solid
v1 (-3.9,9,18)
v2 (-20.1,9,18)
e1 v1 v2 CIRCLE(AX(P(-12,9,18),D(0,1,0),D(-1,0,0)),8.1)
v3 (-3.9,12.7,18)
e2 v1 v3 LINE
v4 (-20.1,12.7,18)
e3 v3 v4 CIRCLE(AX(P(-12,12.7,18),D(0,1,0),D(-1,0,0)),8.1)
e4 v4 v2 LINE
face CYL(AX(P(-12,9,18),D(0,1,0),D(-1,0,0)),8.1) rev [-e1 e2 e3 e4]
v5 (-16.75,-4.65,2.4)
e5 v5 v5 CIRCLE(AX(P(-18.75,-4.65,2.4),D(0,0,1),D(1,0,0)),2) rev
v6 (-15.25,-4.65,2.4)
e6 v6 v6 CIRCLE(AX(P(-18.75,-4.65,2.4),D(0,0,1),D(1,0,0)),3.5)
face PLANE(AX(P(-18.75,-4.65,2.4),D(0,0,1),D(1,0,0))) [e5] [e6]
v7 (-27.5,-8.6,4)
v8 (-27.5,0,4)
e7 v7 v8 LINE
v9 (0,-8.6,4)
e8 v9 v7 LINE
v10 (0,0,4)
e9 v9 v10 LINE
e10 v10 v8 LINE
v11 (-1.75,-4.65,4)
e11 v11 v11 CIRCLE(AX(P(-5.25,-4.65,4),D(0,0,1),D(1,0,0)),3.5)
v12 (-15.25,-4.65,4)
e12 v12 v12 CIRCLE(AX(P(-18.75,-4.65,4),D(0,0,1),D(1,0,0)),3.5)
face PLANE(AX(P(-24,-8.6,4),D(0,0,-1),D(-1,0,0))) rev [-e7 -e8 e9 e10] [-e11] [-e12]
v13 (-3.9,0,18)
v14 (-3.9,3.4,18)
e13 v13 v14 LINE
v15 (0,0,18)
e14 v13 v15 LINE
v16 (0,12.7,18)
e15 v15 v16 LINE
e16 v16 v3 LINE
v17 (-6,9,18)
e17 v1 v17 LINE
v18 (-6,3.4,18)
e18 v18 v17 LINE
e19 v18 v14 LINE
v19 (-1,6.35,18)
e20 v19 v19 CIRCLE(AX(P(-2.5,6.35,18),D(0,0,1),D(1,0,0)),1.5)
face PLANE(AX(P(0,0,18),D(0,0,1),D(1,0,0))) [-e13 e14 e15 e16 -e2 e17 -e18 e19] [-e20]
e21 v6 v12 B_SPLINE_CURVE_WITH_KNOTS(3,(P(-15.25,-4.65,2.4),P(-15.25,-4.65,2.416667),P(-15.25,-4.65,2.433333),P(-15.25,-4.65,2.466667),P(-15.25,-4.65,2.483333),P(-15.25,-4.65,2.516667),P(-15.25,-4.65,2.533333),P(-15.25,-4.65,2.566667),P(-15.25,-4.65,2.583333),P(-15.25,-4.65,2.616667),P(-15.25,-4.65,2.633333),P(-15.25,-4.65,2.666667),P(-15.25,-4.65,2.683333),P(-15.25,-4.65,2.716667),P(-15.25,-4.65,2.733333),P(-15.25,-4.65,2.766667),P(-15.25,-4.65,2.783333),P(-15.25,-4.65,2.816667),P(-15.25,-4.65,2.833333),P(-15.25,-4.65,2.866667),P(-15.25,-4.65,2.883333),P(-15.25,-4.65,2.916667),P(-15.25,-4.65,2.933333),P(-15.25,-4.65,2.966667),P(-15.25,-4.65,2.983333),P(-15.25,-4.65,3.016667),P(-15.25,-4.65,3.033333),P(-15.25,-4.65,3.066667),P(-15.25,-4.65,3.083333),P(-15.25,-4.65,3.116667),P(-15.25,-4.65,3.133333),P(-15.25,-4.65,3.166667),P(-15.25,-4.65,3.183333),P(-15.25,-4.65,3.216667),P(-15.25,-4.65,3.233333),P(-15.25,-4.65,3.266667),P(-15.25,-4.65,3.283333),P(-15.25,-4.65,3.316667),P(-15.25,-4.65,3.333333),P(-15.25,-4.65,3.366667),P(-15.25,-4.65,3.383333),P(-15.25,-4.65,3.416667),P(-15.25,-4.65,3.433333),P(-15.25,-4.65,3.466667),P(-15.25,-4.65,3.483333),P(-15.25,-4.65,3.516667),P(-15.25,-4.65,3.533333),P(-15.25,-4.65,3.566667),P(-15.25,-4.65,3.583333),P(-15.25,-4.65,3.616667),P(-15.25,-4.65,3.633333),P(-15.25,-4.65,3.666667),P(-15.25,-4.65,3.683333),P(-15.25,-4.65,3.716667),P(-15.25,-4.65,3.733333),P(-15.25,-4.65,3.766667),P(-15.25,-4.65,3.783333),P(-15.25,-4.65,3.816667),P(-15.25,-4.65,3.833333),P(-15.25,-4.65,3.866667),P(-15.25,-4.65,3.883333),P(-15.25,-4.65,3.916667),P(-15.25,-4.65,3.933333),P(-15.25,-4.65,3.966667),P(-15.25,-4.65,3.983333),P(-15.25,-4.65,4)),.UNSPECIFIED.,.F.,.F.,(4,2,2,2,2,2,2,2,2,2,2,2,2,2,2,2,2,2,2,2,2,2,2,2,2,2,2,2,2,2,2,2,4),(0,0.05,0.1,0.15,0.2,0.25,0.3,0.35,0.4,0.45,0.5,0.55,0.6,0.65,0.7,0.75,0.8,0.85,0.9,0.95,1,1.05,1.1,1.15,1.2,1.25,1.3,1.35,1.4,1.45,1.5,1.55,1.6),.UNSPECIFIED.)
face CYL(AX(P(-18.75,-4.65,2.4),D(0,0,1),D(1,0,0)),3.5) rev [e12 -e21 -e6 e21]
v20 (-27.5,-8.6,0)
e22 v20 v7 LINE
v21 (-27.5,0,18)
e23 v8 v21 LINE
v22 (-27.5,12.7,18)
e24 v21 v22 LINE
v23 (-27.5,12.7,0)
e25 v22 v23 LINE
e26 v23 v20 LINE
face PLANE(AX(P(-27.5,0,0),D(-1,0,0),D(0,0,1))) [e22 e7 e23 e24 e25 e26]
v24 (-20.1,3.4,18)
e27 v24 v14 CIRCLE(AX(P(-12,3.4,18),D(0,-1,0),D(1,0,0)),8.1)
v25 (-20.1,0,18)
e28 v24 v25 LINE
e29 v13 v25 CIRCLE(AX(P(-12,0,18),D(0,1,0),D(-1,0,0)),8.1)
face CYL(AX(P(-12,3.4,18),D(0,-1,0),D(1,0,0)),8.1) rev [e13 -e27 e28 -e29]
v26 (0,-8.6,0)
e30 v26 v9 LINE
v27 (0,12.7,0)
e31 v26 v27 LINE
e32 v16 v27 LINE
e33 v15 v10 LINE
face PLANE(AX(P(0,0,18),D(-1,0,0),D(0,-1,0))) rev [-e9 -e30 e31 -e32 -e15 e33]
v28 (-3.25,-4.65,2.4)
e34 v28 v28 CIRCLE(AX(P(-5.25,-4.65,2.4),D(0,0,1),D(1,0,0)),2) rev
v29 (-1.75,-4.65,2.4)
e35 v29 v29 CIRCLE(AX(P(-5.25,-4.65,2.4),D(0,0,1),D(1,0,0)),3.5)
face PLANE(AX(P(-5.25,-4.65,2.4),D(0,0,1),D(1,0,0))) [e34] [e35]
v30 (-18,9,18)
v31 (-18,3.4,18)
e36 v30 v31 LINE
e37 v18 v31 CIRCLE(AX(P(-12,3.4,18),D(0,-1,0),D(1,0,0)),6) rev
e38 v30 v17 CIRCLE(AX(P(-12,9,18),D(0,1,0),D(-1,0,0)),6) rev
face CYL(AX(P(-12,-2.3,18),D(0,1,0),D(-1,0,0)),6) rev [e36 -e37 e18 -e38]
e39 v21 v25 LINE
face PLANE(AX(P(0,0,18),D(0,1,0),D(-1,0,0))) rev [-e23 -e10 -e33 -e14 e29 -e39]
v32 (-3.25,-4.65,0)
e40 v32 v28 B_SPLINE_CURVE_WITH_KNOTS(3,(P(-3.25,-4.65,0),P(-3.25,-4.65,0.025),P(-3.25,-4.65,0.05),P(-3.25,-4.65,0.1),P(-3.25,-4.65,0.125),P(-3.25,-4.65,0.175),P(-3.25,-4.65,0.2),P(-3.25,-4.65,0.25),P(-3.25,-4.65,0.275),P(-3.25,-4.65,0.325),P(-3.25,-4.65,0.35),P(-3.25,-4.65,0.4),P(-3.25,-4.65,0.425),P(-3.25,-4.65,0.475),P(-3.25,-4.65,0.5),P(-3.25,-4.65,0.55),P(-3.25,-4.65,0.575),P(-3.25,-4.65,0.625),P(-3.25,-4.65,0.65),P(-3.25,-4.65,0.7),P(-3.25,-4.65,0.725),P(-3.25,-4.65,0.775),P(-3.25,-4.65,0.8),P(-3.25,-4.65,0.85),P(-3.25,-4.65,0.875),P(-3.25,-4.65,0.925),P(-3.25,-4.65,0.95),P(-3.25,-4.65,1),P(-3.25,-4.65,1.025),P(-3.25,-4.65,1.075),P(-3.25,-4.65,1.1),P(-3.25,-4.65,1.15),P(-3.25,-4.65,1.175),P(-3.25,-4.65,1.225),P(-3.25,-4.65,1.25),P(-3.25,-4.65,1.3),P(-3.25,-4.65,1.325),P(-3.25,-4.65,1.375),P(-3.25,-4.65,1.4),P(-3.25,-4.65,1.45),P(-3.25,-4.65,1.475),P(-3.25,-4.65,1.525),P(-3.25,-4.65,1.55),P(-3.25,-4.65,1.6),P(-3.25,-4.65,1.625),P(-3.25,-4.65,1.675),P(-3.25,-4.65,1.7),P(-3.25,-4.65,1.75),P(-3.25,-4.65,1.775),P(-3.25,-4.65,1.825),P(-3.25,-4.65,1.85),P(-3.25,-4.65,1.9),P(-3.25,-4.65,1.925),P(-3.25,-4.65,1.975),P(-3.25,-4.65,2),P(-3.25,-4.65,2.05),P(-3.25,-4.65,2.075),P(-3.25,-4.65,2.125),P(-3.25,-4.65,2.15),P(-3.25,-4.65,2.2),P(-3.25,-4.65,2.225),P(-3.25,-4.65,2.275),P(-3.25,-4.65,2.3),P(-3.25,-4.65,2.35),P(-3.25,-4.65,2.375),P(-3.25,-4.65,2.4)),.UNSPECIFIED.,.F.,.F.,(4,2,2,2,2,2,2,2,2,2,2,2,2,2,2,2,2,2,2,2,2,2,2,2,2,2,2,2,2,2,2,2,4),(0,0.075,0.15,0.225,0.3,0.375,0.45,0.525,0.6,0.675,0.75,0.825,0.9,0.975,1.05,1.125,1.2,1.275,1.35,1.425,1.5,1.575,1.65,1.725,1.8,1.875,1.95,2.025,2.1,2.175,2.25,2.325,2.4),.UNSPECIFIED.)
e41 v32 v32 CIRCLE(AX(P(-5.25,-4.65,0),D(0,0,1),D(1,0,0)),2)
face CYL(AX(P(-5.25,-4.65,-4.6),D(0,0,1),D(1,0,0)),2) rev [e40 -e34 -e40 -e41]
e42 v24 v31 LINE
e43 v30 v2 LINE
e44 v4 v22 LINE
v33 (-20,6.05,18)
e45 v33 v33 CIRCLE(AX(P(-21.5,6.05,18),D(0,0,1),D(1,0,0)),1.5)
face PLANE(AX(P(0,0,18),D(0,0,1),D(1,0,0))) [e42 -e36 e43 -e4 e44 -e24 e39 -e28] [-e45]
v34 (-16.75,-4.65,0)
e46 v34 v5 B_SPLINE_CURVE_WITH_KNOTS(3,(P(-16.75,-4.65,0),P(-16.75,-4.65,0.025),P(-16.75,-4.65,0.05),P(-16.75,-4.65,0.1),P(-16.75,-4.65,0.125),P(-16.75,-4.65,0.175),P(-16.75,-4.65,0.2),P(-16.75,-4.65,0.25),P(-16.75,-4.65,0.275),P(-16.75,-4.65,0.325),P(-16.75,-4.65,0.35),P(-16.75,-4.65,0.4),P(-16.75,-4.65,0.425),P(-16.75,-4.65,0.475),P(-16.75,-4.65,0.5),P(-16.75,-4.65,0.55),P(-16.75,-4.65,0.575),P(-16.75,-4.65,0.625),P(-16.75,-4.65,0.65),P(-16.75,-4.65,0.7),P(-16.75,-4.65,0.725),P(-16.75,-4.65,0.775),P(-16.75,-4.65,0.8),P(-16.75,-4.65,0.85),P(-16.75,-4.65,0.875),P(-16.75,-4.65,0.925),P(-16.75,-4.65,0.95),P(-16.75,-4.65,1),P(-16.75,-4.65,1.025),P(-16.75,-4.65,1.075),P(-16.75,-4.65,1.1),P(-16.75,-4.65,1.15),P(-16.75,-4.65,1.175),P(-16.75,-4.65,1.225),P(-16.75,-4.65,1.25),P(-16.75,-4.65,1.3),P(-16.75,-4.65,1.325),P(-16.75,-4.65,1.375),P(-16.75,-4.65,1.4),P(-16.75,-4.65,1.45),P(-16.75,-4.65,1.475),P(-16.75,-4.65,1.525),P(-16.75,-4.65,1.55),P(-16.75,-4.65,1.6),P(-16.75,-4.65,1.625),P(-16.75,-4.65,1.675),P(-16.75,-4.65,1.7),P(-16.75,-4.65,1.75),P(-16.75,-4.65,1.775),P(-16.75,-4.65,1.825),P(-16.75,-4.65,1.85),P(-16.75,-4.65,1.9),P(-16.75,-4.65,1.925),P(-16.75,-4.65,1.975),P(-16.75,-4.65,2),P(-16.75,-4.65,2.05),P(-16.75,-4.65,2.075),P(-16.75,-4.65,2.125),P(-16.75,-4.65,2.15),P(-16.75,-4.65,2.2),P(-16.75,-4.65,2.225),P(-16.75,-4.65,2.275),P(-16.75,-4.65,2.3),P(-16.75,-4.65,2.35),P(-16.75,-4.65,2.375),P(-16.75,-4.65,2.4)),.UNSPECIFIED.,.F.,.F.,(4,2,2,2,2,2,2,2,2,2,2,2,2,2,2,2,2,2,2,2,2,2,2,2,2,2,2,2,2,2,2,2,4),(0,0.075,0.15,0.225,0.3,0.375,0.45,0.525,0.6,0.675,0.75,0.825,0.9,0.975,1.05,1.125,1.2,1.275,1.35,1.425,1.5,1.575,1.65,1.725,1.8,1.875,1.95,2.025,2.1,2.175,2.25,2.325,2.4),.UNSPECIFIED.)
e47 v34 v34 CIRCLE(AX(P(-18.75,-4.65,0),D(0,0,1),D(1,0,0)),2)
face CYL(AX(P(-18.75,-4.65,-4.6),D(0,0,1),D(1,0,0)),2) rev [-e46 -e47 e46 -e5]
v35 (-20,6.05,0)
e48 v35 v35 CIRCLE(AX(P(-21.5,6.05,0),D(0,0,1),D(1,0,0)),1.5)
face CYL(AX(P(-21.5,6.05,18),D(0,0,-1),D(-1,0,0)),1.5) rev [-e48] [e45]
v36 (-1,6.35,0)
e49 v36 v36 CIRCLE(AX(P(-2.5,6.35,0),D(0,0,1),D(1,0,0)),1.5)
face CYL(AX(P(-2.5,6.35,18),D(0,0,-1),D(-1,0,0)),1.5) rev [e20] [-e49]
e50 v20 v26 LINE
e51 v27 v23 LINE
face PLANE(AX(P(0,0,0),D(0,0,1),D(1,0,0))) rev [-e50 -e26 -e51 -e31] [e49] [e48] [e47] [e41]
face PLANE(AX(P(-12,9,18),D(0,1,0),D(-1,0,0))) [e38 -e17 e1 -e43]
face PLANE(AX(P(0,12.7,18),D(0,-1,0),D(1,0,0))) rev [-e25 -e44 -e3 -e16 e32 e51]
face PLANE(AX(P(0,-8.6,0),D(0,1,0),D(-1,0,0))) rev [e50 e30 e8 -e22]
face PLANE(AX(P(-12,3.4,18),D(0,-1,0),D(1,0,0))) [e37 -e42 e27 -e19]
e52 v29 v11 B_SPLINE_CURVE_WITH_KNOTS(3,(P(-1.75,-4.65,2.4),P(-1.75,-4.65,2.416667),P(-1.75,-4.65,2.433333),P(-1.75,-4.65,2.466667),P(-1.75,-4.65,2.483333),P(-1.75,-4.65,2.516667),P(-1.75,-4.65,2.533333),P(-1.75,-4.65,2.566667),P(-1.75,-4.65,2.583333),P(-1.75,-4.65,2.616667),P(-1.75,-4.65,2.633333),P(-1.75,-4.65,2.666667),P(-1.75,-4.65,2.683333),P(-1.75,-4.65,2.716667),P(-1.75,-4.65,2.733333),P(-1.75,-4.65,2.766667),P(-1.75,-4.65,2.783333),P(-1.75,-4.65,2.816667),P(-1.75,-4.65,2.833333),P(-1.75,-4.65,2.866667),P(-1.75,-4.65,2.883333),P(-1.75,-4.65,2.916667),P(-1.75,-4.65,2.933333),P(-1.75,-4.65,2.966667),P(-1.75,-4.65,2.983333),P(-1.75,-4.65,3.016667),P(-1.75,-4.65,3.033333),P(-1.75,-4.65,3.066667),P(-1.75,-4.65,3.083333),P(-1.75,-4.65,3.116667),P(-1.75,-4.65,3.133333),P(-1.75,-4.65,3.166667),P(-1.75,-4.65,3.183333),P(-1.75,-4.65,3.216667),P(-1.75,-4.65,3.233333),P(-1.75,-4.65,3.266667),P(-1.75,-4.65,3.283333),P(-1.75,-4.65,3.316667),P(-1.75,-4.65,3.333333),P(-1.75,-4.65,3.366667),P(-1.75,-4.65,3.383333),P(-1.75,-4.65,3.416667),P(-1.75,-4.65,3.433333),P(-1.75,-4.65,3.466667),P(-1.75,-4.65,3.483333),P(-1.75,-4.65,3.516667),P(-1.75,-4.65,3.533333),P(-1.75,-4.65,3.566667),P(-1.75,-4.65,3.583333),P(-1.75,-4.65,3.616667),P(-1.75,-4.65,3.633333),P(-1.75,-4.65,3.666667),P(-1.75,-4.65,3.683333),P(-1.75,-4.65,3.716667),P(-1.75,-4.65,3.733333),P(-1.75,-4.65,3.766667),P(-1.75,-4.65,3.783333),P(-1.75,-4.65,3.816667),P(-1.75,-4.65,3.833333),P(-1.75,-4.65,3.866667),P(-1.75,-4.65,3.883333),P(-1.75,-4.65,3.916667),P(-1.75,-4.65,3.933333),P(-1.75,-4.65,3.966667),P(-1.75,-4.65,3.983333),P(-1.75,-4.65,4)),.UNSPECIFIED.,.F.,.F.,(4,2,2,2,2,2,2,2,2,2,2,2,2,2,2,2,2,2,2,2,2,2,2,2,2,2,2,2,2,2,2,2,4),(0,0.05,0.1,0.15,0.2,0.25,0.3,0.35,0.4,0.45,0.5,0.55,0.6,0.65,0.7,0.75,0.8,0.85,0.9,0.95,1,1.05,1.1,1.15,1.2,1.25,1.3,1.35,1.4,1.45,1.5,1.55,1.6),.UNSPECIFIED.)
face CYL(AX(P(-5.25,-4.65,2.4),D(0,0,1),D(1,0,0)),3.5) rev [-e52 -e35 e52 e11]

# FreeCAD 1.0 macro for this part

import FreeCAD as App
import Part
import Sketcher
from FreeCAD import Vector

doc = App.newDocument("Part")
params = doc.addObject("Spreadsheet::Sheet", "Params")
for row, (alias, value) in enumerate([
    ("sketch1_diameter", "3 mm"),
    ("sketch1_width", "24 mm"),
    ("sketch1_height", "12.7 mm"),
    ("pad1_length", "18 mm"),
    ("sketch2_diameter", "12 mm"),
    ("pocket1_length", "15 mm"),
    ("sketch3_diameter", "16.2 mm"),
    ("pocket2_length", "3.7 mm"),
    ("sketch4_diameter", "16.2 mm"),
    ("pocket3_length", "3.4 mm"),
    ("sketch5_width", "24 mm"),
    ("sketch5_height", "4 mm"),
    ("pad2_length", "8.6 mm"),
    ("sketch6_diameter", "4 mm"),
    ("pocket4_length", "8.6 mm"),
    ("sketch7_diameter", "7 mm"),
    ("pocket5_length", "1.6 mm"),
    ("sketch8_height", "4 mm"),
    ("sketch8_height2", "14 mm"),
    ("sketch8_width", "21.3 mm"),
    ("sketch8_width2", "8.6 mm"),
    ("pad3_length", "3.5 mm"),
], start=1):
    params.set(f"A{row}", alias)
    params.set(f"B{row}", "=" + value)
    params.setAlias(f"B{row}", alias)

body = doc.addObject("PartDesign::Body", "Body")

# Sketch on XY plane
sketch1 = body.newObject("Sketcher::SketchObject", "Sketch")
sketch1.AttachmentSupport = (doc.getObject("XY_Plane"), [""])
sketch1.MapMode = "FlatFace"
sketch1.addGeometry(Part.LineSegment(Vector(-24, 12.7, 0), Vector(-24, 0, 0)), False)
sketch1.addGeometry(Part.LineSegment(Vector(-24, 0, 0), Vector(0, 0, 0)), False)
sketch1.addGeometry(Part.LineSegment(Vector(0, 0, 0), Vector(0, 12.7, 0)), False)
sketch1.addGeometry(Part.LineSegment(Vector(0, 12.7, 0), Vector(-24, 12.7, 0)), False)
sketch1.addGeometry(Part.Circle(Vector(-21.5, 6, 0), Vector(0, 0, 1), 1.5), False)
sketch1.addGeometry(Part.Circle(Vector(-2.5, 6.3, 0), Vector(0, 0, 1), 1.5), False)
sketch1.addConstraint(Sketcher.Constraint("Coincident", 0, 2, 1, 1))
sketch1.addConstraint(Sketcher.Constraint("Coincident", 1, 2, 2, 1))
sketch1.addConstraint(Sketcher.Constraint("Coincident", 2, 2, 3, 1))
sketch1.addConstraint(Sketcher.Constraint("Coincident", 3, 2, 0, 1))
sketch1.addConstraint(Sketcher.Constraint("Vertical", 0))
sketch1.addConstraint(Sketcher.Constraint("Horizontal", 1))
sketch1.addConstraint(Sketcher.Constraint("Vertical", 2))
sketch1.addConstraint(Sketcher.Constraint("Horizontal", 3))
sketch1.addConstraint(Sketcher.Constraint("Coincident", 1, 2, -1, 1))
sketch1.addConstraint(Sketcher.Constraint("Equal", 4, 5))
sketch1.addConstraint(Sketcher.Constraint("Diameter", 4, 3.0))
sketch1.addConstraint(Sketcher.Constraint("DistanceX", 1, 1, 1, 2, 24.0))
sketch1.addConstraint(Sketcher.Constraint("DistanceY", 0, 2, 0, 1, 12.7))
sketch1.addConstraint(Sketcher.Constraint("DistanceX", 4, 3, 5, 3, 19.0))
sketch1.addConstraint(Sketcher.Constraint("DistanceX", 4, 3, -1, 1, 21.5))
sketch1.addConstraint(Sketcher.Constraint("DistanceY", 4, 3, 5, 3, 0.3))
sketch1.addConstraint(Sketcher.Constraint("DistanceY", -1, 1, 4, 3, 6.05))
sketch1.setExpression("Constraints[10]", "Params.sketch1_diameter")
sketch1.setExpression("Constraints[11]", "Params.sketch1_width")
sketch1.setExpression("Constraints[12]", "Params.sketch1_height")
pad1 = body.newObject("PartDesign::Pad", "Pad")
pad1.Profile = sketch1
pad1.setExpression("Length", "Params.pad1_length")

# Sketch on XZ plane
sketch2 = body.newObject("Sketcher::SketchObject", "Sketch001")
sketch2.AttachmentSupport = (doc.getObject("XZ_Plane"), [""])
sketch2.MapMode = "FlatFace"
sketch2.AttachmentOffset = App.Placement(Vector(0, 0, -12.7), App.Rotation())
sketch2.addGeometry(Part.Circle(Vector(-12, 18, 0), Vector(0, 0, 1), 6), False)
sketch2.addConstraint(Sketcher.Constraint("Diameter", 0, 12.0))
sketch2.addConstraint(Sketcher.Constraint("DistanceX", 0, 3, -1, 1, 12.0))
sketch2.addConstraint(Sketcher.Constraint("DistanceY", -1, 1, 0, 3, 18.0))
sketch2.setExpression("Constraints[0]", "Params.sketch2_diameter")
pocket1 = body.newObject("PartDesign::Pocket", "Pocket")
pocket1.Profile = sketch2
pocket1.setExpression("Length", "Params.pocket1_length")
pocket1.Reversed = True

# Sketch on XZ plane
sketch3 = body.newObject("Sketcher::SketchObject", "Sketch002")
sketch3.AttachmentSupport = (doc.getObject("XZ_Plane"), [""])
sketch3.MapMode = "FlatFace"
sketch3.AttachmentOffset = App.Placement(Vector(0, 0, -12.7), App.Rotation())
sketch3.addGeometry(Part.Circle(Vector(-12, 18, 0), Vector(0, 0, 1), 8), False)
sketch3.addConstraint(Sketcher.Constraint("Diameter", 0, 16.2))
sketch3.addConstraint(Sketcher.Constraint("DistanceX", 0, 3, -1, 1, 12.0))
sketch3.addConstraint(Sketcher.Constraint("DistanceY", -1, 1, 0, 3, 18.0))
sketch3.setExpression("Constraints[0]", "Params.sketch3_diameter")
pocket2 = body.newObject("PartDesign::Pocket", "Pocket001")
pocket2.Profile = sketch3
pocket2.setExpression("Length", "Params.pocket2_length")
pocket2.Reversed = True

# Sketch on XZ plane
sketch4 = body.newObject("Sketcher::SketchObject", "Sketch003")
sketch4.AttachmentSupport = (doc.getObject("XZ_Plane"), [""])
sketch4.MapMode = "FlatFace"
sketch4.AttachmentOffset = App.Placement(Vector(0, 0, -3.4), App.Rotation())
sketch4.addGeometry(Part.Circle(Vector(-12, 18, 0), Vector(0, 0, 1), 8), False)
sketch4.addConstraint(Sketcher.Constraint("Diameter", 0, 16.2))
sketch4.addConstraint(Sketcher.Constraint("DistanceX", 0, 3, -1, 1, 12.0))
sketch4.addConstraint(Sketcher.Constraint("DistanceY", -1, 1, 0, 3, 18.0))
sketch4.setExpression("Constraints[0]", "Params.sketch4_diameter")
pocket3 = body.newObject("PartDesign::Pocket", "Pocket002")
pocket3.Profile = sketch4
pocket3.setExpression("Length", "Params.pocket3_length")
pocket3.Reversed = True

# Sketch on XZ plane
sketch5 = body.newObject("Sketcher::SketchObject", "Sketch004")
sketch5.AttachmentSupport = (doc.getObject("XZ_Plane"), [""])
sketch5.MapMode = "FlatFace"
sketch5.addGeometry(Part.LineSegment(Vector(-24, 4, 0), Vector(-24, 0, 0)), False)
sketch5.addGeometry(Part.LineSegment(Vector(-24, 0, 0), Vector(0, 0, 0)), False)
sketch5.addGeometry(Part.LineSegment(Vector(0, 0, 0), Vector(0, 4, 0)), False)
sketch5.addGeometry(Part.LineSegment(Vector(0, 4, 0), Vector(-24, 4, 0)), False)
sketch5.addConstraint(Sketcher.Constraint("Coincident", 0, 2, 1, 1))
sketch5.addConstraint(Sketcher.Constraint("Coincident", 1, 2, 2, 1))
sketch5.addConstraint(Sketcher.Constraint("Coincident", 2, 2, 3, 1))
sketch5.addConstraint(Sketcher.Constraint("Coincident", 3, 2, 0, 1))
sketch5.addConstraint(Sketcher.Constraint("Vertical", 0))
sketch5.addConstraint(Sketcher.Constraint("Horizontal", 1))
sketch5.addConstraint(Sketcher.Constraint("Vertical", 2))
sketch5.addConstraint(Sketcher.Constraint("Horizontal", 3))
sketch5.addConstraint(Sketcher.Constraint("Coincident", 1, 2, -1, 1))
sketch5.addConstraint(Sketcher.Constraint("DistanceX", 1, 1, 1, 2, 24.0))
sketch5.addConstraint(Sketcher.Constraint("DistanceY", 0, 2, 0, 1, 4.0))
sketch5.setExpression("Constraints[9]", "Params.sketch5_width")
sketch5.setExpression("Constraints[10]", "Params.sketch5_height")
pad2 = body.newObject("PartDesign::Pad", "Pad001")
pad2.Profile = sketch5
pad2.setExpression("Length", "Params.pad2_length")

# Sketch on XY plane
sketch6 = body.newObject("Sketcher::SketchObject", "Sketch005")
sketch6.AttachmentSupport = (doc.getObject("XY_Plane"), [""])
sketch6.MapMode = "FlatFace"
sketch6.AttachmentOffset = App.Placement(Vector(0, 0, 4), App.Rotation())
sketch6.addGeometry(Part.Circle(Vector(-18.8, -4.7, 0), Vector(0, 0, 1), 2), False)
sketch6.addGeometry(Part.Circle(Vector(-5.2, -4.7, 0), Vector(0, 0, 1), 2), False)
sketch6.addConstraint(Sketcher.Constraint("Equal", 0, 1))
sketch6.addConstraint(Sketcher.Constraint("Horizontal", 0, 3, 1, 3))
sketch6.addConstraint(Sketcher.Constraint("Diameter", 0, 4.0))
sketch6.addConstraint(Sketcher.Constraint("DistanceX", 0, 3, 1, 3, 13.5))
sketch6.addConstraint(Sketcher.Constraint("DistanceX", 0, 3, -1, 1, 18.75))
sketch6.addConstraint(Sketcher.Constraint("DistanceY", 0, 3, -1, 1, 4.65))
sketch6.setExpression("Constraints[2]", "Params.sketch6_diameter")
pocket4 = body.newObject("PartDesign::Pocket", "Pocket003")
pocket4.Profile = sketch6
pocket4.setExpression("Length", "Params.pocket4_length")

# Sketch on XY plane
sketch7 = body.newObject("Sketcher::SketchObject", "Sketch006")
sketch7.AttachmentSupport = (doc.getObject("XY_Plane"), [""])
sketch7.MapMode = "FlatFace"
sketch7.AttachmentOffset = App.Placement(Vector(0, 0, 4), App.Rotation())
sketch7.addGeometry(Part.Circle(Vector(-18.8, -4.7, 0), Vector(0, 0, 1), 3.5), False)
sketch7.addGeometry(Part.Circle(Vector(-5.2, -4.7, 0), Vector(0, 0, 1), 3.5), False)
sketch7.addConstraint(Sketcher.Constraint("Equal", 0, 1))
sketch7.addConstraint(Sketcher.Constraint("Horizontal", 0, 3, 1, 3))
sketch7.addConstraint(Sketcher.Constraint("Diameter", 0, 7.0))
sketch7.addConstraint(Sketcher.Constraint("DistanceX", 0, 3, 1, 3, 13.5))
sketch7.addConstraint(Sketcher.Constraint("DistanceX", 0, 3, -1, 1, 18.75))
sketch7.addConstraint(Sketcher.Constraint("DistanceY", 0, 3, -1, 1, 4.65))
sketch7.setExpression("Constraints[2]", "Params.sketch7_diameter")
pocket5 = body.newObject("PartDesign::Pocket", "Pocket004")
pocket5.Profile = sketch7
pocket5.setExpression("Length", "Params.pocket5_length")

# Sketch on YZ plane
sketch8 = body.newObject("Sketcher::SketchObject", "Sketch007")
sketch8.AttachmentSupport = (doc.getObject("YZ_Plane"), [""])
sketch8.MapMode = "FlatFace"
sketch8.AttachmentOffset = App.Placement(Vector(0, 0, -24), App.Rotation())
sketch8.addGeometry(Part.LineSegment(Vector(12.7, 0, 0), Vector(-8.6, 0, 0)), False)
sketch8.addGeometry(Part.LineSegment(Vector(-8.6, 0, 0), Vector(-8.6, 4, 0)), False)
sketch8.addGeometry(Part.LineSegment(Vector(-8.6, 4, 0), Vector(0, 4, 0)), False)
sketch8.addGeometry(Part.LineSegment(Vector(0, 4, 0), Vector(0, 18, 0)), False)
sketch8.addGeometry(Part.LineSegment(Vector(0, 18, 0), Vector(12.7, 18, 0)), False)
sketch8.addGeometry(Part.LineSegment(Vector(12.7, 18, 0), Vector(12.7, 0, 0)), False)
sketch8.addConstraint(Sketcher.Constraint("Coincident", 0, 2, 1, 1))
sketch8.addConstraint(Sketcher.Constraint("Coincident", 1, 2, 2, 1))
sketch8.addConstraint(Sketcher.Constraint("Coincident", 2, 2, 3, 1))
sketch8.addConstraint(Sketcher.Constraint("Coincident", 3, 2, 4, 1))
sketch8.addConstraint(Sketcher.Constraint("Coincident", 4, 2, 5, 1))
sketch8.addConstraint(Sketcher.Constraint("Coincident", 5, 2, 0, 1))
sketch8.addConstraint(Sketcher.Constraint("Horizontal", 0))
sketch8.addConstraint(Sketcher.Constraint("Vertical", 1))
sketch8.addConstraint(Sketcher.Constraint("Horizontal", 2))
sketch8.addConstraint(Sketcher.Constraint("Vertical", 3))
sketch8.addConstraint(Sketcher.Constraint("Horizontal", 4))
sketch8.addConstraint(Sketcher.Constraint("Vertical", 5))
sketch8.addConstraint(Sketcher.Constraint("PointOnObject", 0, 2, -1))
sketch8.addConstraint(Sketcher.Constraint("PointOnObject", 2, 2, -2))
sketch8.addConstraint(Sketcher.Constraint("DistanceY", 1, 1, 1, 2, 4.0))
sketch8.addConstraint(Sketcher.Constraint("DistanceY", 3, 1, 3, 2, 14.0))
sketch8.addConstraint(Sketcher.Constraint("DistanceX", 0, 2, 0, 1, 21.3))
sketch8.addConstraint(Sketcher.Constraint("DistanceX", 2, 1, 2, 2, 8.6))
sketch8.setExpression("Constraints[14]", "Params.sketch8_height")
sketch8.setExpression("Constraints[15]", "Params.sketch8_height2")
sketch8.setExpression("Constraints[16]", "Params.sketch8_width")
sketch8.setExpression("Constraints[17]", "Params.sketch8_width2")
pad3 = body.newObject("PartDesign::Pad", "Pad002")
pad3.Profile = sketch8
pad3.setExpression("Length", "Params.pad3_length")
pad3.Reversed = True

doc.recompute()
